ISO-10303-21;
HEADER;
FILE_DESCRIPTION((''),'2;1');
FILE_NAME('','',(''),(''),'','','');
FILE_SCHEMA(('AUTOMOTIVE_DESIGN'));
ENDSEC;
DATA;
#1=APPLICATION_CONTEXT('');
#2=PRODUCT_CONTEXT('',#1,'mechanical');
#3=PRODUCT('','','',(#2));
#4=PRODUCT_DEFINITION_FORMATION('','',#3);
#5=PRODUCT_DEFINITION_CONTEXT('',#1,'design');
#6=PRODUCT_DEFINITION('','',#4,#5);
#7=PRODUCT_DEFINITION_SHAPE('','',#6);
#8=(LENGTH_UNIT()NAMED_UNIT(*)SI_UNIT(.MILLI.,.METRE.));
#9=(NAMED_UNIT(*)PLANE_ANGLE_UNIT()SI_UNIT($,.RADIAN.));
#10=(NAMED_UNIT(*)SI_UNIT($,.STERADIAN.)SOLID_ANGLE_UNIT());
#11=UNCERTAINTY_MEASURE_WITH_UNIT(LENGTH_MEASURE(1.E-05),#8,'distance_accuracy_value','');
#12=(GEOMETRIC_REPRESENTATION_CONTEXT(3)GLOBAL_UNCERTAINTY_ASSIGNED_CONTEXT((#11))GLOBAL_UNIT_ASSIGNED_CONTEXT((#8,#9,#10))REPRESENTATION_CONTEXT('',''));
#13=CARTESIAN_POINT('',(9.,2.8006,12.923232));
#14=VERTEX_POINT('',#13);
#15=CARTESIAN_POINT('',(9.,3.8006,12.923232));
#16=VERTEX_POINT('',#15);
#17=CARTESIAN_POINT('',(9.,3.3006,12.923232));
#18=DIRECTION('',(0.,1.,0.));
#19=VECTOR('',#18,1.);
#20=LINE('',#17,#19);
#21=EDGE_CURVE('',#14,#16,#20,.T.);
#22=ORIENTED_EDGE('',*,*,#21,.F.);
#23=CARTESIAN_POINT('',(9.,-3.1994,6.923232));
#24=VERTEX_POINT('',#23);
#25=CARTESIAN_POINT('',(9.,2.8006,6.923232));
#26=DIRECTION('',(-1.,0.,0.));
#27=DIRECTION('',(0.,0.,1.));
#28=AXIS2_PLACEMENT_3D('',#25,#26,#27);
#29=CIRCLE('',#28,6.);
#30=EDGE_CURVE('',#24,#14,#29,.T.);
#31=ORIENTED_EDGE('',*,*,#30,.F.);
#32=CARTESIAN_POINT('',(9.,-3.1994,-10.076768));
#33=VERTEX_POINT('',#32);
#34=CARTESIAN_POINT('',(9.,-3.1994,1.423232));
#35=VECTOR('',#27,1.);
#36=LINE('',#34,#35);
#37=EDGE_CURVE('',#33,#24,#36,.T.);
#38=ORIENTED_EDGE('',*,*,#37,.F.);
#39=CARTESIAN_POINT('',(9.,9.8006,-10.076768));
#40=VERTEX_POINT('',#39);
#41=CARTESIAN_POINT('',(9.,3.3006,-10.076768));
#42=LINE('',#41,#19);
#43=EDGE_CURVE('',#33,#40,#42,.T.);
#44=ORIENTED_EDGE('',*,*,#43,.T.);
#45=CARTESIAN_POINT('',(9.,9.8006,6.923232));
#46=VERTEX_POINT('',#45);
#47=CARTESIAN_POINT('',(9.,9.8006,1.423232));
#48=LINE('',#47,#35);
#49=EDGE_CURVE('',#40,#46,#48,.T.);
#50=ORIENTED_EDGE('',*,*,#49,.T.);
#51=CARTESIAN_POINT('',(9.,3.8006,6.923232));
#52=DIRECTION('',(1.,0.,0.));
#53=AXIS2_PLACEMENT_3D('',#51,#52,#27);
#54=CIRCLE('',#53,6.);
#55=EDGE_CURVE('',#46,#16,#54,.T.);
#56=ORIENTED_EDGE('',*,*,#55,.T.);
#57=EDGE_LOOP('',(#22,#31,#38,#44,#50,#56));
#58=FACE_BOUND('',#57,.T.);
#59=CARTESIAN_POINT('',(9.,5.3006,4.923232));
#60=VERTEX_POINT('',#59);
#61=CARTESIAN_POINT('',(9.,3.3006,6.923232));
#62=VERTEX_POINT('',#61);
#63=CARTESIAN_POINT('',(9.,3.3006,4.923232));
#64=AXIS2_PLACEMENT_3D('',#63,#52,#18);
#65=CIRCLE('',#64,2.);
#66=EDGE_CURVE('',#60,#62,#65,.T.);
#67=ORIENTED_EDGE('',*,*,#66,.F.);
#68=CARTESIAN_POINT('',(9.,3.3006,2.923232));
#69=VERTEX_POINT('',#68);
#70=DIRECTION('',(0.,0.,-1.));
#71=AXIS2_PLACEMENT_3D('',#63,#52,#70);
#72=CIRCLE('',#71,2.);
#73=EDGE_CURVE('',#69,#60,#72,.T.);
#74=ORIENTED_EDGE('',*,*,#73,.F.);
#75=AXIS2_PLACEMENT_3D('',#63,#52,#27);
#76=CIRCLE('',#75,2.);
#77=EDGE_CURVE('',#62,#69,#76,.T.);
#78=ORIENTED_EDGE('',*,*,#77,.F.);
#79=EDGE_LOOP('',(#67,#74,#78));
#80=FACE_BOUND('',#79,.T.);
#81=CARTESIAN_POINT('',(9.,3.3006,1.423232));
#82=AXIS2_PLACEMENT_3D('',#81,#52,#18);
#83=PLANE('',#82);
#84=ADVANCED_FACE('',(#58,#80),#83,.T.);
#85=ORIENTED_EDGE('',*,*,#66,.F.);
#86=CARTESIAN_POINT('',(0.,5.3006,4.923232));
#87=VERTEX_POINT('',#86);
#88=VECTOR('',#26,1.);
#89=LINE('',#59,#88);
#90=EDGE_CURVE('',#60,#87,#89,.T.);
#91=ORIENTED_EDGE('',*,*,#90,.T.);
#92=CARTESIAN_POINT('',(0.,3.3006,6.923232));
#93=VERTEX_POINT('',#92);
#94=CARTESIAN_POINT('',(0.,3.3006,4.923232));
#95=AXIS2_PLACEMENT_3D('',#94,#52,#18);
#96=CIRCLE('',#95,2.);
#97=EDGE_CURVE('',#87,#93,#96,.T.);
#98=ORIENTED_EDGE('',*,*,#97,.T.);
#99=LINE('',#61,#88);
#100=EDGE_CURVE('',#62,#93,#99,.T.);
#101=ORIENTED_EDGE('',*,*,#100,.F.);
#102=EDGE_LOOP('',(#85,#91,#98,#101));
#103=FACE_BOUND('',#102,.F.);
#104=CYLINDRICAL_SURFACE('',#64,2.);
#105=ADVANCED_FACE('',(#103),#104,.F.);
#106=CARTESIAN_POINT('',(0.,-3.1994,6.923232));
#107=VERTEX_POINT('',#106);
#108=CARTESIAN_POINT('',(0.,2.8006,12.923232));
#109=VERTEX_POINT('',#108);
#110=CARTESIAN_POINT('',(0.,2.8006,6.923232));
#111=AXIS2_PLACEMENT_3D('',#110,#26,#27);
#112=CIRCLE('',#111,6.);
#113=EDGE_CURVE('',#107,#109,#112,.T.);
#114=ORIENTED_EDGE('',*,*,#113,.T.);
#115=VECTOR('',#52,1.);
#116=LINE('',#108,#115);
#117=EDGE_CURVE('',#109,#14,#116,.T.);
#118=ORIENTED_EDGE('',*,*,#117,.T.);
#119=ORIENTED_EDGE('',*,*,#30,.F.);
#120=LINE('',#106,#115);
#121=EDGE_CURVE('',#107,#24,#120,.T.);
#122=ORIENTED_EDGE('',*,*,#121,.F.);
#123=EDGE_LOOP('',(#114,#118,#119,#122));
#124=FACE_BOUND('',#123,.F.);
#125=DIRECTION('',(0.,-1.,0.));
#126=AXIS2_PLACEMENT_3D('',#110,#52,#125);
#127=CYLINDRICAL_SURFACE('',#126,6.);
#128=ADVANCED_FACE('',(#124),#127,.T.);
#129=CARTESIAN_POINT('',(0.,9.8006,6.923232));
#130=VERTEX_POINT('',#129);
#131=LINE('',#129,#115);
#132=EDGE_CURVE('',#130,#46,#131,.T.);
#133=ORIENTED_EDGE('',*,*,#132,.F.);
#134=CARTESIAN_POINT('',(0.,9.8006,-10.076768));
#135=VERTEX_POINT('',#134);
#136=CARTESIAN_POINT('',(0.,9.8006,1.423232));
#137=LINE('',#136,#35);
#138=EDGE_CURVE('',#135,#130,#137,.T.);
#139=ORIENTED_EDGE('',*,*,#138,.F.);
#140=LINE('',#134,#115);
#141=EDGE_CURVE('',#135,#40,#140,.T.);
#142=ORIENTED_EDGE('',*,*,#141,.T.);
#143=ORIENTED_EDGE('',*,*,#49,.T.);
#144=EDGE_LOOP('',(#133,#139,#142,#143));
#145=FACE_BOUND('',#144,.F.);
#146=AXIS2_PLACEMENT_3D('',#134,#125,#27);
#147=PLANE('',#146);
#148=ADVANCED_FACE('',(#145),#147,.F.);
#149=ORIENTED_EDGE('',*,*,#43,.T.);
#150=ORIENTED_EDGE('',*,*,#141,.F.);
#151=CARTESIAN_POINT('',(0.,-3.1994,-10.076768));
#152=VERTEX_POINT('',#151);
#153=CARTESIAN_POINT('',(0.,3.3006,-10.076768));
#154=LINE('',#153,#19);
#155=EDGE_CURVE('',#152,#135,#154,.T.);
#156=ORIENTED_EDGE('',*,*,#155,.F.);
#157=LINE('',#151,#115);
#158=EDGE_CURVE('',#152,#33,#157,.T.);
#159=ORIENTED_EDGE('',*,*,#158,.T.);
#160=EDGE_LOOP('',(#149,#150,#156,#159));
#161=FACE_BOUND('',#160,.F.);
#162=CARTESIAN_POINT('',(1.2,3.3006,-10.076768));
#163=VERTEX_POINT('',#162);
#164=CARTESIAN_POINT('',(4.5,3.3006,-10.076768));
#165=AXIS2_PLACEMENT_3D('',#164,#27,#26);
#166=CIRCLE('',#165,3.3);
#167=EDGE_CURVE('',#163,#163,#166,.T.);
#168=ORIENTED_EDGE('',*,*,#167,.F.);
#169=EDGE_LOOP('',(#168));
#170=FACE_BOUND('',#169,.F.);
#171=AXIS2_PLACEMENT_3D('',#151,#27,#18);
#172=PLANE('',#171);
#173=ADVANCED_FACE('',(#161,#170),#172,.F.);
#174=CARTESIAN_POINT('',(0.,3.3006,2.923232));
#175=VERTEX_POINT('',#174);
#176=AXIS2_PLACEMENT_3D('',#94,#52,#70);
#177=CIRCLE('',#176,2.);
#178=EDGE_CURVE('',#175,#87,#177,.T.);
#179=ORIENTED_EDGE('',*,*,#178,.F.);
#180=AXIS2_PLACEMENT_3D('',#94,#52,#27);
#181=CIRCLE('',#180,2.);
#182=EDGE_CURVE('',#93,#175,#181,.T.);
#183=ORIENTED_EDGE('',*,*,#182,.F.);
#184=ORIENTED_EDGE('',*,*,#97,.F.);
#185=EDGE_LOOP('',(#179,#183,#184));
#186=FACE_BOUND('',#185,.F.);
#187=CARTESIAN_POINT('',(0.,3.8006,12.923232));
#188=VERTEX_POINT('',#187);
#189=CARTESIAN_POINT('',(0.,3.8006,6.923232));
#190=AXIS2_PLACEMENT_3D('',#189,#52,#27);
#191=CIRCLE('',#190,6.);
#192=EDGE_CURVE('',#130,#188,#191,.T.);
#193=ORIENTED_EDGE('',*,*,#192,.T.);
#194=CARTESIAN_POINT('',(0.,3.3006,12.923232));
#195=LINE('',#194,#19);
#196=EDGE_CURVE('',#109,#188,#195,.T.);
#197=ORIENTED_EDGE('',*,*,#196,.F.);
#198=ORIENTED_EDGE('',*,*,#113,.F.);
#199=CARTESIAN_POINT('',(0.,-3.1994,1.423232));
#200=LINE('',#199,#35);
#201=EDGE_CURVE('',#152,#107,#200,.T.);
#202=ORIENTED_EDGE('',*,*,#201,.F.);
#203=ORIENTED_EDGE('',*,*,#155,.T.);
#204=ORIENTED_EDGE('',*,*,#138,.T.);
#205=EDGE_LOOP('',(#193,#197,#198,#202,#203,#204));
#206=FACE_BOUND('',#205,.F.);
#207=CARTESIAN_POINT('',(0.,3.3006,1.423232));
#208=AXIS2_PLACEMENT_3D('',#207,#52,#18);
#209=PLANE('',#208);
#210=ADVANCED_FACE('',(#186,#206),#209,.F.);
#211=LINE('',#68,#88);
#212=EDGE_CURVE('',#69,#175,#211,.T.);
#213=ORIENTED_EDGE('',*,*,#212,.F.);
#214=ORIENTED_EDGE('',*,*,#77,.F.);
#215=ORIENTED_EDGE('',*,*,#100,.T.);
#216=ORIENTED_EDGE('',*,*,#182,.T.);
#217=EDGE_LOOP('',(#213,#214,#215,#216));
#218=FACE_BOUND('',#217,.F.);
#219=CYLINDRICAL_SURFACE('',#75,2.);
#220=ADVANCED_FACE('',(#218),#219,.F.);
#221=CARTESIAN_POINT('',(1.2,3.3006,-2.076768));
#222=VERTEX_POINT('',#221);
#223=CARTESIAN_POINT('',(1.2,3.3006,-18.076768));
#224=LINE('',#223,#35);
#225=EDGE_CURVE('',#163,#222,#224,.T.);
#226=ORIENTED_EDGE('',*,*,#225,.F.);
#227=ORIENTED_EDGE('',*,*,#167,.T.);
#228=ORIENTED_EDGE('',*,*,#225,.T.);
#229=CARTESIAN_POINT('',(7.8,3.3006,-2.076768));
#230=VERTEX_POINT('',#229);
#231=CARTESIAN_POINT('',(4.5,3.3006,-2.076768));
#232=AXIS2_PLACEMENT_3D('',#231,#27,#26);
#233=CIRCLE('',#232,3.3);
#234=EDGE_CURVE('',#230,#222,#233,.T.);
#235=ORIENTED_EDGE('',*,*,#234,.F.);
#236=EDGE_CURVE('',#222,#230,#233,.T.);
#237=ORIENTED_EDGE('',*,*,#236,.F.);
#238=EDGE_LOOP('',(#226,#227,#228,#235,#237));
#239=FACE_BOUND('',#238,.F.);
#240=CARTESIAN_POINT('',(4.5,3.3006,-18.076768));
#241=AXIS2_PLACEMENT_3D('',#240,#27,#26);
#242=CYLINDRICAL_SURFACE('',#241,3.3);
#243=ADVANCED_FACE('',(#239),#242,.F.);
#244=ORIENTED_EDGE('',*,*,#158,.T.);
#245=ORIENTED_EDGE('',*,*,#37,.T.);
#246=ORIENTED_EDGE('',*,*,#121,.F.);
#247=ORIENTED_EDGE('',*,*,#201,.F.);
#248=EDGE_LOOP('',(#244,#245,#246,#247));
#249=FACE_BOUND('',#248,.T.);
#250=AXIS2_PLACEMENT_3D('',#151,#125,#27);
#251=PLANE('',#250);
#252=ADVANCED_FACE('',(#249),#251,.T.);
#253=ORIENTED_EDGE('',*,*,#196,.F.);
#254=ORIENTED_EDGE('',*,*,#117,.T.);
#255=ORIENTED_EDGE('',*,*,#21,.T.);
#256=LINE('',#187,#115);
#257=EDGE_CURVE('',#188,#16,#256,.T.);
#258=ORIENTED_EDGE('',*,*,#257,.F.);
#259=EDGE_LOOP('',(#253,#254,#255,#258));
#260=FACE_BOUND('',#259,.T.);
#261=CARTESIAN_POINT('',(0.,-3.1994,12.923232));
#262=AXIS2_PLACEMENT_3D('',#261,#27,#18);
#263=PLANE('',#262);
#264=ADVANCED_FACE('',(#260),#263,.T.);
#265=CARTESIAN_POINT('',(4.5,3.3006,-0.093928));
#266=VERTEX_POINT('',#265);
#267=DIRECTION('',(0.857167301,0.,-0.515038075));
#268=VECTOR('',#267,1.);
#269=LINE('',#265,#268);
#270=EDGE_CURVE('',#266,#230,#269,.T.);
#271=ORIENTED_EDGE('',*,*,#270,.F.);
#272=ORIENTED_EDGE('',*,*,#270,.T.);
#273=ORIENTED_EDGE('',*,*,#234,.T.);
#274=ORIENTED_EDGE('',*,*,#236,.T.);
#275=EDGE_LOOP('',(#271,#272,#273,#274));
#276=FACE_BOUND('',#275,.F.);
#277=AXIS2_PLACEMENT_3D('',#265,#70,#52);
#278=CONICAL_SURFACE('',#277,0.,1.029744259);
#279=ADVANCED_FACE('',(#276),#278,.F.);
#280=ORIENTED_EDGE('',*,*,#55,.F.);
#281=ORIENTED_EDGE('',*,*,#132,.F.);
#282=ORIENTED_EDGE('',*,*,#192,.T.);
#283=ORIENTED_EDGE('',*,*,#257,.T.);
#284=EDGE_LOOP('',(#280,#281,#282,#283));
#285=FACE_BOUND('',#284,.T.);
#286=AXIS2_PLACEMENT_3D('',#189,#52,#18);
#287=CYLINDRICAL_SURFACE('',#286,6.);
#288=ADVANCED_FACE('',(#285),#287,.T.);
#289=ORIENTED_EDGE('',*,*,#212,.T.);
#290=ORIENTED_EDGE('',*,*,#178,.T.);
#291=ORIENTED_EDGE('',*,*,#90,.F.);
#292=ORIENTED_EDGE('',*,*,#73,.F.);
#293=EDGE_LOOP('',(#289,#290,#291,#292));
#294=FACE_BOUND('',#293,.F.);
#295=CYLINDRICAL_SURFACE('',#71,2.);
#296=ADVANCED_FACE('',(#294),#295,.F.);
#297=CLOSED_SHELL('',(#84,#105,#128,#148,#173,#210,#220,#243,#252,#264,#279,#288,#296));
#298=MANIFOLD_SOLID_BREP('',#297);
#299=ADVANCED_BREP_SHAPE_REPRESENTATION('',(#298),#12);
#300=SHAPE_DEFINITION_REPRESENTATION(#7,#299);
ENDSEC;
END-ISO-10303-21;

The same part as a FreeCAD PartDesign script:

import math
import FreeCAD as App
import Part
import Sketcher
from FreeCAD import Vector


def edges_at(feature, points):
    """Names of the edges that pass closest to the given points."""
    edges = feature.Shape.Edges
    near = lambda p: min(range(len(edges)), key=lambda i: edges[i].distToShape(Part.Vertex(*p))[0])
    return sorted({f"Edge{near(p) + 1}" for p in points})

doc = App.newDocument("Part")
body = doc.addObject("PartDesign::Body", "Body")

# Sketch on YZ plane
sketch1 = doc.addObject("Sketcher::SketchObject", "Sketch")
body.addObject(sketch1)
sketch1.AttachmentSupport = (doc.YZ_Plane, [""])
sketch1.MapMode = "FlatFace"
sketch1.addGeometry(Part.LineSegment(Vector(-3, 13, 0), Vector(-3, -10, 0)), False)
sketch1.addGeometry(Part.LineSegment(Vector(-3, -10, 0), Vector(10, -10, 0)), False)
sketch1.addGeometry(Part.LineSegment(Vector(10, -10, 0), Vector(10, 13, 0)), False)
sketch1.addGeometry(Part.LineSegment(Vector(10, 13, 0), Vector(-3, 13, 0)), False)
sketch1.addConstraint(Sketcher.Constraint("Coincident", 0, 2, 1, 1))
sketch1.addConstraint(Sketcher.Constraint("Coincident", 1, 2, 2, 1))
sketch1.addConstraint(Sketcher.Constraint("Coincident", 2, 2, 3, 1))
sketch1.addConstraint(Sketcher.Constraint("Coincident", 3, 2, 0, 1))
sketch1.addConstraint(Sketcher.Constraint("Vertical", 0))
sketch1.addConstraint(Sketcher.Constraint("Horizontal", 1))
sketch1.addConstraint(Sketcher.Constraint("Vertical", 2))
sketch1.addConstraint(Sketcher.Constraint("Horizontal", 3))
sketch1.addConstraint(Sketcher.Constraint("DistanceX", 1, 1, 1, 2, 13.0))
sketch1.addConstraint(Sketcher.Constraint("DistanceY", 0, 2, 0, 1, 23.0))
sketch1.addConstraint(Sketcher.Constraint("DistanceX", 0, 2, -1, 1, 3.1994))
sketch1.addConstraint(Sketcher.Constraint("DistanceY", 0, 2, -1, 1, 10.076768))
pad1 = doc.addObject("PartDesign::Pad", "Pad")
body.addObject(pad1)
pad1.Profile = sketch1
pad1.Length = 9
doc.recompute()

fillet = doc.addObject("PartDesign::Fillet", "Fillet")
body.addObject(fillet)
fillet.Base = (pad1, edges_at(pad1, [(4.5, -3.199, 12.923), (4.5, 9.801, 12.923)]))
fillet.Radius = 6

# Sketch on YZ plane
sketch2 = doc.addObject("Sketcher::SketchObject", "Sketch001")
body.addObject(sketch2)
sketch2.AttachmentSupport = (doc.YZ_Plane, [""])
sketch2.MapMode = "FlatFace"
sketch2.AttachmentOffset = App.Placement(Vector(0, 0, 9), App.Rotation())
sketch2.addGeometry(Part.ArcOfCircle(Part.Circle(Vector(3.3, 4.9, 0), Vector(0, 0, 1), 2), math.radians(0), math.radians(90)), False)
sketch2.addGeometry(Part.ArcOfCircle(Part.Circle(Vector(3.3, 4.9, 0), Vector(0, 0, 1), 2), math.radians(90), math.radians(270)), False)
sketch2.addGeometry(Part.ArcOfCircle(Part.Circle(Vector(3.3, 4.9, 0), Vector(0, 0, 1), 2), math.radians(-90), math.radians(0)), False)
sketch2.addConstraint(Sketcher.Constraint("Tangent", 0, 2, 1, 1))
sketch2.addConstraint(Sketcher.Constraint("Tangent", 1, 2, 2, 1))
sketch2.addConstraint(Sketcher.Constraint("Tangent", 2, 2, 0, 1))
sketch2.addConstraint(Sketcher.Constraint("Horizontal", 1, 3, 2, 2))
sketch2.addConstraint(Sketcher.Constraint("Vertical", 2, 3, 0, 2))
sketch2.addConstraint(Sketcher.Constraint("Vertical", 0, 2, 1, 2))
sketch2.addConstraint(Sketcher.Constraint("Radius", 0, 2.0))
sketch2.addConstraint(Sketcher.Constraint("DistanceX", -1, 1, 0, 3, 3.3006))
sketch2.addConstraint(Sketcher.Constraint("DistanceY", -1, 1, 0, 3, 4.923232))
pocket1 = doc.addObject("PartDesign::Pocket", "Pocket")
body.addObject(pocket1)
pocket1.Profile = sketch2
pocket1.Type = "ThroughAll"

# Sketch on XY plane
sketch3 = doc.addObject("Sketcher::SketchObject", "Sketch002")
body.addObject(sketch3)
sketch3.AttachmentSupport = (doc.XY_Plane, [""])
sketch3.MapMode = "FlatFace"
sketch3.AttachmentOffset = App.Placement(Vector(0, 0, -10.076768), App.Rotation())
sketch3.addGeometry(Part.Circle(Vector(4.5, 3.3, 0), Vector(0, 0, 1), 3.3), False)
sketch3.addConstraint(Sketcher.Constraint("Diameter", 0, 6.6))
sketch3.addConstraint(Sketcher.Constraint("DistanceX", -1, 1, 0, 3, 4.5))
sketch3.addConstraint(Sketcher.Constraint("DistanceY", -1, 1, 0, 3, 3.3006))
doc.recompute()
hole = doc.addObject("PartDesign::Hole", "Hole")
body.addObject(hole)
hole.Profile = sketch3
hole.ThreadType = "None"
hole.Diameter = 6.6
hole.DepthType = "Dimension"
hole.Depth = 8
hole.DrillPoint = "Angled"
hole.DrillPointAngle = 118
hole.Reversed = True

doc.recompute()
